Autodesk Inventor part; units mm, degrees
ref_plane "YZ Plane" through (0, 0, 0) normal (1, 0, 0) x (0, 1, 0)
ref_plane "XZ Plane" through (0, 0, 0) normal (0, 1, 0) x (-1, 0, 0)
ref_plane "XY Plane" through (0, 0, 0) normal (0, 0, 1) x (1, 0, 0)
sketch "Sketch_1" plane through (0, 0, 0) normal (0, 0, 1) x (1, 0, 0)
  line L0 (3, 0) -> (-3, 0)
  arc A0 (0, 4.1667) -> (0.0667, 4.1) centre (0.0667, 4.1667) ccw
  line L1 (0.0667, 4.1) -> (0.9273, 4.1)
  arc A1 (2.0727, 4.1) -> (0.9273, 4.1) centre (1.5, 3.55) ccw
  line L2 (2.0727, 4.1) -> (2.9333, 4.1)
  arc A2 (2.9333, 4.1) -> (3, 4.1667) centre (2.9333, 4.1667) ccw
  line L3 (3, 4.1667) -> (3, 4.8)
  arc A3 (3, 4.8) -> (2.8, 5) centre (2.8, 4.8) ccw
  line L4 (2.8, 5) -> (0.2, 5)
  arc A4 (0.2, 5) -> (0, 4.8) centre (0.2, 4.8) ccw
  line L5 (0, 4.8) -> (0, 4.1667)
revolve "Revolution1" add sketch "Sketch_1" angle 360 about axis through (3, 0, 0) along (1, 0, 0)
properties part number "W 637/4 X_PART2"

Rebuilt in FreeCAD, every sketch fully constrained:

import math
import FreeCAD as App
import Part
import Sketcher
from FreeCAD import Vector
Q = App.Units.Quantity

doc = App.newDocument("Part")
body = doc.addObject("PartDesign::Body", "Body")

sketch1 = body.newObject("Sketcher::SketchObject", "Sketch")
sketch1.AttachmentSupport = (doc.getObject("XY_Plane"), [""])
sketch1.MapMode = "FlatFace"
sketch1.addGeometry(Part.LineSegment(Vector(0, 4.8, 0), Vector(0, 4.17, 0)), False)
sketch1.addGeometry(Part.ArcOfCircle(Part.Circle(Vector(0.07, 4.17, 0), Vector(0, 0, 1), 0.07), math.radians(180), math.radians(270)), False)
sketch1.addGeometry(Part.LineSegment(Vector(0.07, 4.1, 0), Vector(0.93, 4.1, 0)), False)
sketch1.addGeometry(Part.ArcOfCircle(Part.Circle(Vector(1.5, 3.55, 0), Vector(0, 0, 1), 0.79), math.radians(44), math.radians(136)), False)
sketch1.addGeometry(Part.LineSegment(Vector(2.07, 4.1, 0), Vector(2.93, 4.1, 0)), False)
sketch1.addGeometry(Part.ArcOfCircle(Part.Circle(Vector(2.93, 4.17, 0), Vector(0, 0, 1), 0.07), math.radians(-90), math.radians(0)), False)
sketch1.addGeometry(Part.LineSegment(Vector(3, 4.17, 0), Vector(3, 4.8, 0)), False)
sketch1.addGeometry(Part.ArcOfCircle(Part.Circle(Vector(2.8, 4.8, 0), Vector(0, 0, 1), 0.2), math.radians(0), math.radians(90)), False)
sketch1.addGeometry(Part.LineSegment(Vector(2.8, 5, 0), Vector(0.2, 5, 0)), False)
sketch1.addGeometry(Part.ArcOfCircle(Part.Circle(Vector(0.2, 4.8, 0), Vector(0, 0, 1), 0.2), math.radians(90), math.radians(180)), False)
sketch1.addConstraint(Sketcher.Constraint("Tangent", 0, 2, 1, 1))
sketch1.addConstraint(Sketcher.Constraint("Tangent", 1, 2, 2, 1))
sketch1.addConstraint(Sketcher.Constraint("Coincident", 2, 2, 3, 2))
sketch1.addConstraint(Sketcher.Constraint("Coincident", 3, 1, 4, 1))
sketch1.addConstraint(Sketcher.Constraint("Tangent", 4, 2, 5, 1))
sketch1.addConstraint(Sketcher.Constraint("Tangent", 5, 2, 6, 1))
sketch1.addConstraint(Sketcher.Constraint("Tangent", 6, 2, 7, 1))
sketch1.addConstraint(Sketcher.Constraint("Tangent", 7, 2, 8, 1))
sketch1.addConstraint(Sketcher.Constraint("Tangent", 8, 2, 9, 1))
sketch1.addConstraint(Sketcher.Constraint("Tangent", 9, 2, 0, 1))
sketch1.addConstraint(Sketcher.Constraint("Vertical", 0))
sketch1.addConstraint(Sketcher.Constraint("Horizontal", 2))
sketch1.addConstraint(Sketcher.Constraint("Horizontal", 4))
sketch1.addConstraint(Sketcher.Constraint("Vertical", 6))
sketch1.addConstraint(Sketcher.Constraint("Horizontal", 8))
sketch1.addConstraint(Sketcher.Constraint("Equal", 1, 5))
sketch1.addConstraint(Sketcher.Constraint("Equal", 7, 9))
sketch1.addConstraint(Sketcher.Constraint("PointOnObject", 0, 2, -2))
sketch1.addConstraint(Sketcher.Constraint("Horizontal", 1, 3, 5, 3))
sketch1.addConstraint(Sketcher.Constraint("Equal", 2, 4))
sketch1.addConstraint(Sketcher.Constraint("Radius", 7, Q("0.2 mm")))
sketch1.addConstraint(Sketcher.Constraint("DistanceX", 8, 2, 8, 1, Q("2.6 mm")))
sketch1.addConstraint(Sketcher.Constraint("DistanceY", -1, 1, 7, 2, Q("5 mm")))
sketch1.addConstraint(Sketcher.Constraint("Radius", 3, Q("0.794 mm")))
sketch1.addConstraint(Sketcher.Constraint("DistanceY", -1, 1, 1, 2, Q("4.1 mm")))
sketch1.addConstraint(Sketcher.Constraint("Radius", 1, Q("0.0667 mm")))
sketch1.addConstraint(Sketcher.Constraint("DistanceY", -1, 1, 3, 3, Q("3.55 mm")))
revolution = body.newObject("PartDesign::Revolution", "Revolution")
revolution.Profile = sketch1
revolution.ReferenceAxis = (sketch1, ["H_Axis"])
revolution.Angle = 360

doc.recompute()
